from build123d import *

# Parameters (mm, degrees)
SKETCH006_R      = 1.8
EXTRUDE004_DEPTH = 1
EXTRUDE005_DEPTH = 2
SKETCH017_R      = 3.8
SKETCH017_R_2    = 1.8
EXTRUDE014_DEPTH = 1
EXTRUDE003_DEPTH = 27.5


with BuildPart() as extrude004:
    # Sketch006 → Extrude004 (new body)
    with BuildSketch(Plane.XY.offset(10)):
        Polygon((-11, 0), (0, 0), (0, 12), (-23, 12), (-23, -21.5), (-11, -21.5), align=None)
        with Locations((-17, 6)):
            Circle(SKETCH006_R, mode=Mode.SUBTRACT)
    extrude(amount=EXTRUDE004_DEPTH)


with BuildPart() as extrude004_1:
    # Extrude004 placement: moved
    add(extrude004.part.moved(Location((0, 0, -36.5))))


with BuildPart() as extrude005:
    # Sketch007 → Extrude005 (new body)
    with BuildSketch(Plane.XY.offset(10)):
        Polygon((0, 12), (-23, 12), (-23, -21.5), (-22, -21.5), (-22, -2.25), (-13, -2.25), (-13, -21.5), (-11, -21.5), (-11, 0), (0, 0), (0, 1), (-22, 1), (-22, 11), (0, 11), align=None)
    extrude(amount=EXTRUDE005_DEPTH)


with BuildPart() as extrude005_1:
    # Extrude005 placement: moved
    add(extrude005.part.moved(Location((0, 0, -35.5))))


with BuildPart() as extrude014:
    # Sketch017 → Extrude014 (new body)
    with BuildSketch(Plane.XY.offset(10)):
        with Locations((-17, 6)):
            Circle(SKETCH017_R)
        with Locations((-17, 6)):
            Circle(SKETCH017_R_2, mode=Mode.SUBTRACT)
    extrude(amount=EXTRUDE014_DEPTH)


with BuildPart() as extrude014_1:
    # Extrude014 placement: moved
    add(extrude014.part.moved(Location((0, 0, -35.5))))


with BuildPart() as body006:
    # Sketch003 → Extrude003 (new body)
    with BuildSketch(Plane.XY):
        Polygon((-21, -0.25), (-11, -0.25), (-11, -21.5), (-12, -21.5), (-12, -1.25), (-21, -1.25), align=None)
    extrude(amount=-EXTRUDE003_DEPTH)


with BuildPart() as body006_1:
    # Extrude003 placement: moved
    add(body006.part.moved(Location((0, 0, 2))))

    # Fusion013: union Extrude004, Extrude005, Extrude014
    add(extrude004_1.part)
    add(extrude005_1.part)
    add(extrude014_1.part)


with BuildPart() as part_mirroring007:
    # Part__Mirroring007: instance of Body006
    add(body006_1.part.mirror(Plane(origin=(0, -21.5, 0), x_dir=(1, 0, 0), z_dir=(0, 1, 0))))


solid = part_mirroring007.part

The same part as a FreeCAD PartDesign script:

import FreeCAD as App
import Part
import Sketcher
Q = App.Units.Quantity


def add_polygon(sketch, points):
    """Adds a closed chain of lines whose ends are joined by coincident constraints."""
    first, n = sketch.GeometryCount, len(points)
    for a, b in zip(points, points[1:] + points[:1]):
        sketch.addGeometry(Part.LineSegment(App.Vector(*a, 0), App.Vector(*b, 0)), False)
    for i in range(n):
        sketch.addConstraint(Sketcher.Constraint("Coincident", first + i, 2, first + (i + 1) % n, 1))

doc = App.newDocument("Part")
body = doc.addObject("PartDesign::Body", "Body")

# Sketch on XY plane
sketch1 = body.newObject("Sketcher::SketchObject", "Sketch")
sketch1.AttachmentSupport = (doc.getObject("XY_Plane"), [""])
sketch1.MapMode = "FlatFace"
sketch1.AttachmentOffset = App.Placement(App.Vector(0, 0, 10), App.Rotation())
add_polygon(sketch1, [(-11, 0), (0, 0), (0, 12), (-23, 12), (-23, -21.5), (-11, -21.5)])  # lines 0-5
sketch1.addGeometry(Part.Circle(App.Vector(-17, 6, 0), App.Vector(0, 0, 1), 1.8), False)  # 6
sketch1.addConstraint([
    Sketcher.Constraint("Horizontal", 0),
    Sketcher.Constraint("Vertical", 1),
    Sketcher.Constraint("Horizontal", 2),
    Sketcher.Constraint("Vertical", 3),
    Sketcher.Constraint("Horizontal", 4),
    Sketcher.Constraint("Vertical", 5),
    Sketcher.Constraint("Coincident", 0, 2, -1, 1),
    Sketcher.Constraint("Equal", 4, 1),
    Sketcher.Constraint("Diameter", 6, Q("3.6 mm")),
    Sketcher.Constraint("DistanceX", 0, 1, 0, 2, Q("11 mm")),
    Sketcher.Constraint("DistanceX", 2, 2, 2, 1, Q("23 mm")),
    Sketcher.Constraint("DistanceY", 3, 2, 3, 1, Q("33.5 mm")),
    Sketcher.Constraint("DistanceX", 6, 3, -1, 1, Q("17 mm")),
    Sketcher.Constraint("DistanceY", -1, 1, 6, 3, Q("6 mm")),
])
pad1 = body.newObject("PartDesign::Pad", "Pad")
pad1.Profile = sketch1
pad1.Length = 1
body2 = doc.addObject("PartDesign::Body", "Body001")
doc.recompute()

body.Placement = App.Placement(App.Vector(0, 0, -36.5), App.Rotation(App.Vector(0, 0, 1), 0))
boolean = body2.newObject("PartDesign::Boolean", "Boolean")
boolean.Type = "Fuse"
boolean.addObjects([body])
body3 = doc.addObject("PartDesign::Body", "Body002")

# Sketch on XY plane
sketch2 = body3.newObject("Sketcher::SketchObject", "Sketch001")
sketch2.AttachmentSupport = (doc.getObject("XY_Plane002"), [""])
sketch2.MapMode = "FlatFace"
sketch2.AttachmentOffset = App.Placement(App.Vector(0, 0, 10), App.Rotation())
add_polygon(sketch2, [(0, 12), (-23, 12), (-23, -21.5), (-22, -21.5), (-22, -2.2), (-13, -2.2), (-13, -21.5), (-11, -21.5), (-11, 0), (0, 0), (0, 1), (-22, 1), (-22, 11), (0, 11)])  # lines 0-13
sketch2.addConstraint([
    Sketcher.Constraint("Horizontal", 0),
    Sketcher.Constraint("Vertical", 1),
    Sketcher.Constraint("Horizontal", 2),
    Sketcher.Constraint("Vertical", 3),
    Sketcher.Constraint("Horizontal", 4),
    Sketcher.Constraint("Vertical", 5),
    Sketcher.Constraint("Horizontal", 6),
    Sketcher.Constraint("Vertical", 7),
    Sketcher.Constraint("Horizontal", 8),
    Sketcher.Constraint("Vertical", 9),
    Sketcher.Constraint("Horizontal", 10),
    Sketcher.Constraint("Vertical", 11),
    Sketcher.Constraint("Horizontal", 12),
    Sketcher.Constraint("Vertical", 13),
    Sketcher.Constraint("Coincident", 8, 2, -1, 1),
    Sketcher.Constraint("PointOnObject", 12, 2, -2),
    Sketcher.Constraint("Horizontal", 2, 2, 5, 2),
    Sketcher.Constraint("Vertical", 3, 2, 10, 2),
    Sketcher.Constraint("Equal", 2, 9),
    Sketcher.Constraint("Equal", 9, 13),
    Sketcher.Constraint("DistanceX", 0, 2, 0, 1, Q("23 mm")),
    Sketcher.Constraint("DistanceX", 2, 1, 2, 2, Q("1 mm")),
    Sketcher.Constraint("DistanceX", 4, 1, 4, 2, Q("9 mm")),
    Sketcher.Constraint("DistanceX", 6, 1, 6, 2, Q("2 mm")),
    Sketcher.Constraint("DistanceY", 11, 1, 11, 2, Q("10 mm")),
    Sketcher.Constraint("DistanceY", 1, 2, 1, 1, Q("33.5 mm")),
    Sketcher.Constraint("DistanceY", 3, 1, 3, 2, Q("19.25 mm")),
])
pad2 = body3.newObject("PartDesign::Pad", "Pad001")
pad2.Profile = sketch2
pad2.Length = 2
body4 = doc.addObject("PartDesign::Body", "Body003")
doc.recompute()

body3.Placement = App.Placement(App.Vector(0, 0, -35.5), App.Rotation(App.Vector(0, 0, 1), 0))
boolean2 = body4.newObject("PartDesign::Boolean", "Boolean001")
boolean2.Type = "Fuse"
boolean2.addObjects([body3])
body5 = doc.addObject("PartDesign::Body", "Body004")

# Sketch on XY plane
sketch3 = body5.newObject("Sketcher::SketchObject", "Sketch002")
sketch3.AttachmentSupport = (doc.getObject("XY_Plane004"), [""])
sketch3.MapMode = "FlatFace"
sketch3.AttachmentOffset = App.Placement(App.Vector(0, 0, 10), App.Rotation())
sketch3.addGeometry([
    Part.Circle(App.Vector(-17, 6, 0), App.Vector(0, 0, 1), 3.8),
    Part.Circle(App.Vector(-17, 6, 0), App.Vector(0, 0, 1), 1.8),
], False)
sketch3.addConstraint([
    Sketcher.Constraint("Coincident", 1, 3, 0, 3),
    Sketcher.Constraint("Diameter", 0, Q("7.6 mm")),
    Sketcher.Constraint("Diameter", 1, Q("3.6 mm")),
    Sketcher.Constraint("DistanceX", 0, 3, -1, 1, Q("17 mm")),
    Sketcher.Constraint("DistanceY", -1, 1, 0, 3, Q("6 mm")),
])
pad3 = body5.newObject("PartDesign::Pad", "Pad002")
pad3.Profile = sketch3
pad3.Length = 1
body6 = doc.addObject("PartDesign::Body", "Body005")
doc.recompute()

body5.Placement = App.Placement(App.Vector(0, 0, -35.5), App.Rotation(App.Vector(0, 0, 1), 0))
boolean3 = body6.newObject("PartDesign::Boolean", "Boolean002")
boolean3.Type = "Fuse"
boolean3.addObjects([body5])
body7 = doc.addObject("PartDesign::Body", "Body006")

# Sketch on XY plane
sketch4 = body7.newObject("Sketcher::SketchObject", "Sketch003")
sketch4.AttachmentSupport = (doc.getObject("XY_Plane006"), [""])
sketch4.MapMode = "FlatFace"
add_polygon(sketch4, [(-11, -0.2), (-21, -0.2), (-21, -1.2), (-12, -1.2), (-12, -21.5), (-11, -21.5)])  # lines 0-5
sketch4.addConstraint([
    Sketcher.Constraint("Horizontal", 0),
    Sketcher.Constraint("Vertical", 1),
    Sketcher.Constraint("Horizontal", 2),
    Sketcher.Constraint("Vertical", 3),
    Sketcher.Constraint("Horizontal", 4),
    Sketcher.Constraint("Vertical", 5),
    Sketcher.Constraint("Equal", 4, 1),
    Sketcher.Constraint("DistanceX", 0, 2, 0, 1, Q("10 mm")),
    Sketcher.Constraint("DistanceX", 2, 1, 2, 2, Q("9 mm")),
    Sketcher.Constraint("DistanceX", 0, 2, -1, 1, Q("21 mm")),
    Sketcher.Constraint("DistanceY", 3, 2, 3, 1, Q("20.25 mm")),
    Sketcher.Constraint("DistanceY", 3, 2, -1, 1, Q("21.5 mm")),
])
pad4 = body7.newObject("PartDesign::Pad", "Pad003")
pad4.Profile = sketch4
pad4.Length = 27.5
pad4.Reversed = True
body8 = doc.addObject("PartDesign::Body", "Body007")
doc.recompute()

body7.Placement = App.Placement(App.Vector(0, 0, 2), App.Rotation(App.Vector(0, 0, 1), 0))
boolean4 = body8.newObject("PartDesign::Boolean", "Boolean003")
boolean4.Type = "Fuse"
boolean4.addObjects([body7])
doc.recompute()

boolean5 = body8.newObject("PartDesign::Boolean", "Boolean004")
boolean5.Type = "Fuse"
boolean5.addObjects([body2])
doc.recompute()

boolean6 = body8.newObject("PartDesign::Boolean", "Boolean005")
boolean6.Type = "Fuse"
boolean6.addObjects([body4])
doc.recompute()

boolean7 = body8.newObject("PartDesign::Boolean", "Boolean006")
boolean7.Type = "Fuse"
boolean7.addObjects([body6])
body9 = doc.addObject("PartDesign::Body", "Body008")
doc.recompute()

mirroring = doc.addObject("Part::Mirroring", "Mirroring")
mirroring.Source = body8
mirroring.Base = App.Vector(0, -21.5, 0)
mirroring.Normal = App.Vector(0, 1, 0)
body9.BaseFeature = mirroring
doc.recompute()
body8.Visibility = False
mirroring.Visibility = False

doc.recompute()
